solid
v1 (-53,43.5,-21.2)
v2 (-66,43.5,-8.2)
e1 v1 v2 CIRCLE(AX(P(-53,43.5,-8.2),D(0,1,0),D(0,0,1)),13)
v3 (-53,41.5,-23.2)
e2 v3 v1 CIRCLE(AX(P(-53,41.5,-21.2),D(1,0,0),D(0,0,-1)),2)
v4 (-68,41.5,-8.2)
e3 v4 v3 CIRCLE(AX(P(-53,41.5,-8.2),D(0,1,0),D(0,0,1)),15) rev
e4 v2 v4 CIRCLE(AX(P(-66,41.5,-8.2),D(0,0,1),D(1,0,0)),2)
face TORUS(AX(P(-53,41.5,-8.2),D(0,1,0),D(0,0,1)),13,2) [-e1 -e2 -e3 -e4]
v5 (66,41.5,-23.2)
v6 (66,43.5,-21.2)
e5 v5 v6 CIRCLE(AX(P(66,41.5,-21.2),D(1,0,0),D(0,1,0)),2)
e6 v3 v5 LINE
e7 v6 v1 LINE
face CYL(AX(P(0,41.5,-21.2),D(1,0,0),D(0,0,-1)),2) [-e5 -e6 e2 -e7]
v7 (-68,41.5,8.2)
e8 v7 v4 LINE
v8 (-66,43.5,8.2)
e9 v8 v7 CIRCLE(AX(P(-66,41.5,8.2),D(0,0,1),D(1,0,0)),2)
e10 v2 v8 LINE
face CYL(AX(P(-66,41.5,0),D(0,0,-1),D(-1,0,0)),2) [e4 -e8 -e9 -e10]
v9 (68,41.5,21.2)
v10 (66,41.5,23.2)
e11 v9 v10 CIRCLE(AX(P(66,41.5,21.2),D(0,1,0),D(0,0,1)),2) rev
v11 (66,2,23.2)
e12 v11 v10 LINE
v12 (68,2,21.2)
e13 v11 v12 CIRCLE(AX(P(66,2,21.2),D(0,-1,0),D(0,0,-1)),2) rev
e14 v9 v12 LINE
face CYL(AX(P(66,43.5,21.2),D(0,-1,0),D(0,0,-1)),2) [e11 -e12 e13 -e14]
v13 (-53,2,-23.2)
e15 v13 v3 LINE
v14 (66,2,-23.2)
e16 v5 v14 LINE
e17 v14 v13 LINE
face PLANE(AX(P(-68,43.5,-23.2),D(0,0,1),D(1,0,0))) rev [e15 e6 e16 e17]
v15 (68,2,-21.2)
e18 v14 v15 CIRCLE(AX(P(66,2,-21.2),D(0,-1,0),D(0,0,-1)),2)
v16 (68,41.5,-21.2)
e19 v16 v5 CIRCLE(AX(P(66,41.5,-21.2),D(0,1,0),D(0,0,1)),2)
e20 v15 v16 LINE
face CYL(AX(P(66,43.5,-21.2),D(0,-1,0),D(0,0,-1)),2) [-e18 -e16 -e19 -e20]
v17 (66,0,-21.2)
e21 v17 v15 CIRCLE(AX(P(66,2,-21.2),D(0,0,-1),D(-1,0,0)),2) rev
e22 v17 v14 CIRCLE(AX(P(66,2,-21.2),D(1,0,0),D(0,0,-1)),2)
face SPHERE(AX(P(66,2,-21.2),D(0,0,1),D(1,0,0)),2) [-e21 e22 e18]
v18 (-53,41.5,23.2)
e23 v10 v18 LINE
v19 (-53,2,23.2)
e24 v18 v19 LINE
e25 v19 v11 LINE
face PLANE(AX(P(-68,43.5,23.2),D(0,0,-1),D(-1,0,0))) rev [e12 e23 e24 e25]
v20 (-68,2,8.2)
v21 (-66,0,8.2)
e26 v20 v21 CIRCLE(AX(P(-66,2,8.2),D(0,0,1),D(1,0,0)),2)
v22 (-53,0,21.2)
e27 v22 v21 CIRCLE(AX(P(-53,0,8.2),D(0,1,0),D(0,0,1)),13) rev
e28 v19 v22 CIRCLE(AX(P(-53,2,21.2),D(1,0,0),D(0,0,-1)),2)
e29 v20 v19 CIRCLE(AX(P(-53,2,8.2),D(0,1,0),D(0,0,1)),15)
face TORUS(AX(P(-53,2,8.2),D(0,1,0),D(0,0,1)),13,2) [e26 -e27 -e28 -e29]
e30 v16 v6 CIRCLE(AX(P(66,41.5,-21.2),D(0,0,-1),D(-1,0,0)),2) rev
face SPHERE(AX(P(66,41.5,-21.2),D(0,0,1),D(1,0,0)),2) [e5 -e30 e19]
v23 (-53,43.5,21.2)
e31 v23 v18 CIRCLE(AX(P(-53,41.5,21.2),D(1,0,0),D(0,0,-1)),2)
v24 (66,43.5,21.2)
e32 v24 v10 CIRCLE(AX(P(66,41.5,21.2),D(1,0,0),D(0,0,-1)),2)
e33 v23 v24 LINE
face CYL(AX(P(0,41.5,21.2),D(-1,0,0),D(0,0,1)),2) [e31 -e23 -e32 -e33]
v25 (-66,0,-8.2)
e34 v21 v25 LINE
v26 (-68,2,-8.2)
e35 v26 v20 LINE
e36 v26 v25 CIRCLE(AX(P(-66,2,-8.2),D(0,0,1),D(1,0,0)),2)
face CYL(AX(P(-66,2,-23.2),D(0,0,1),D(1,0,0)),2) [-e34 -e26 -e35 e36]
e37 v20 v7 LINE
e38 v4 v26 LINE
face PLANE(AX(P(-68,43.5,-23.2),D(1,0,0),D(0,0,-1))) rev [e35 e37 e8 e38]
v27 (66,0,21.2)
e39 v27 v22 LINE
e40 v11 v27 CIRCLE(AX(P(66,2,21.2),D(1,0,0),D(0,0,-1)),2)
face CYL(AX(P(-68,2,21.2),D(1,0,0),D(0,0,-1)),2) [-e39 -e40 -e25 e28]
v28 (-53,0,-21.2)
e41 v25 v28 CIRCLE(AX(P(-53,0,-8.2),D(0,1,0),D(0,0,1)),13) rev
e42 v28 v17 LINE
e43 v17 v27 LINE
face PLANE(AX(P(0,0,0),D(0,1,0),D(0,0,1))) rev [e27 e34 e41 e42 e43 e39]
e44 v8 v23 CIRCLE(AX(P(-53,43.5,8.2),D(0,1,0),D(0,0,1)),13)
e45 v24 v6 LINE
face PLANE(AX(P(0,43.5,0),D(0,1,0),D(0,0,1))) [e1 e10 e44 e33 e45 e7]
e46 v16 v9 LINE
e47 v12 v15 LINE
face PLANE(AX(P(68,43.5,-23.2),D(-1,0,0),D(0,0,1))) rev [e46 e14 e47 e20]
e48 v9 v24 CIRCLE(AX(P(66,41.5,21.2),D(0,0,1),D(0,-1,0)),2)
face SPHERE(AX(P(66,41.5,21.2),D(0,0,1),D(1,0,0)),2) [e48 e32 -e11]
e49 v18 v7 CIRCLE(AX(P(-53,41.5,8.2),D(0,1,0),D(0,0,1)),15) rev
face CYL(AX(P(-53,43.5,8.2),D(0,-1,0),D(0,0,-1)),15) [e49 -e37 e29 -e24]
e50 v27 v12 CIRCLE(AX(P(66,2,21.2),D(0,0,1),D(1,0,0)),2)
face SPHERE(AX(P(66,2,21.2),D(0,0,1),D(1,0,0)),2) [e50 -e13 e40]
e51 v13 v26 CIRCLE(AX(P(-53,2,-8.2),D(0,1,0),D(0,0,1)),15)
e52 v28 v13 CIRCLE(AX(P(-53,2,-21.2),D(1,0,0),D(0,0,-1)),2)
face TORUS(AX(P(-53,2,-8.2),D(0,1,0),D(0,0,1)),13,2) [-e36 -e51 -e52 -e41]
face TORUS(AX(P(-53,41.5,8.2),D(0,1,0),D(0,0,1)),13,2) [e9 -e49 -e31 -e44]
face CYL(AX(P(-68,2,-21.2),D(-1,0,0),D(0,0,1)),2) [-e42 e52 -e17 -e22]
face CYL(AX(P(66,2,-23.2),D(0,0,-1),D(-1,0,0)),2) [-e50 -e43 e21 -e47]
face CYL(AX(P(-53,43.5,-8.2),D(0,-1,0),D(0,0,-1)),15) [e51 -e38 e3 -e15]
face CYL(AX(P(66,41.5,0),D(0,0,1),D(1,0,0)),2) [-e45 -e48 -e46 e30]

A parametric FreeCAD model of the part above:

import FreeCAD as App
import Part
import Sketcher

V = App.Vector


def edges_at(feature, points):
    """Names of the edges that pass closest to the given points."""
    edges = feature.Shape.Edges
    near = lambda p: min(range(len(edges)), key=lambda i: edges[i].distToShape(Part.Vertex(*p))[0])
    return sorted({f"Edge{near(p) + 1}" for p in points})

doc = App.newDocument("Part")
body = doc.addObject("PartDesign::Body", "Body")

sketch1 = doc.addObject("Sketcher::SketchObject", "Sketch")
body.addObject(sketch1)
sketch1.AttachmentSupport = (doc.XZ_Plane, [""])
sketch1.MapMode = "FlatFace"
sketch1.addGeometry([
    Part.LineSegment(V(-68, -23, 0), V(-68, 23, 0)),
    Part.LineSegment(V(-68, 23, 0), V(68, 23, 0)),
    Part.LineSegment(V(68, 23, 0), V(68, -23, 0)),
    Part.LineSegment(V(68, -23, 0), V(-68, -23, 0)),
], False)
sketch1.addConstraint([
    Sketcher.Constraint("Coincident", 0, 2, 1, 1),
    Sketcher.Constraint("Coincident", 1, 2, 2, 1),
    Sketcher.Constraint("Coincident", 2, 2, 3, 1),
    Sketcher.Constraint("Coincident", 3, 2, 0, 1),
    Sketcher.Constraint("Vertical", 0),
    Sketcher.Constraint("Horizontal", 1),
    Sketcher.Constraint("Vertical", 2),
    Sketcher.Constraint("Horizontal", 3),
    Sketcher.Constraint("Symmetric", 0, 2, 2, 2, -1, 1),
    Sketcher.Constraint("DistanceX", 1, 1, 1, 2, 136.0),
    Sketcher.Constraint("DistanceY", 0, 1, 0, 2, 46.4),
])
pad1 = doc.addObject("PartDesign::Pad", "Pad")
body.addObject(pad1)
pad1.Profile = sketch1
pad1.Length = 43.5
pad1.Reversed = True
doc.recompute()

fillet = doc.addObject("PartDesign::Fillet", "Fillet")
body.addObject(fillet)
fillet.Base = (pad1, edges_at(pad1, [(-68, 21.75, 23.2), (-68, 21.75, -23.2)]))
fillet.Radius = 15
doc.recompute()

fillet2 = doc.addObject("PartDesign::Fillet", "Fillet001")
body.addObject(fillet2)
fillet2.Base = (fillet, ["Edge1"])
fillet2.UseAllEdges = True
fillet2.Radius = 2

doc.recompute()
